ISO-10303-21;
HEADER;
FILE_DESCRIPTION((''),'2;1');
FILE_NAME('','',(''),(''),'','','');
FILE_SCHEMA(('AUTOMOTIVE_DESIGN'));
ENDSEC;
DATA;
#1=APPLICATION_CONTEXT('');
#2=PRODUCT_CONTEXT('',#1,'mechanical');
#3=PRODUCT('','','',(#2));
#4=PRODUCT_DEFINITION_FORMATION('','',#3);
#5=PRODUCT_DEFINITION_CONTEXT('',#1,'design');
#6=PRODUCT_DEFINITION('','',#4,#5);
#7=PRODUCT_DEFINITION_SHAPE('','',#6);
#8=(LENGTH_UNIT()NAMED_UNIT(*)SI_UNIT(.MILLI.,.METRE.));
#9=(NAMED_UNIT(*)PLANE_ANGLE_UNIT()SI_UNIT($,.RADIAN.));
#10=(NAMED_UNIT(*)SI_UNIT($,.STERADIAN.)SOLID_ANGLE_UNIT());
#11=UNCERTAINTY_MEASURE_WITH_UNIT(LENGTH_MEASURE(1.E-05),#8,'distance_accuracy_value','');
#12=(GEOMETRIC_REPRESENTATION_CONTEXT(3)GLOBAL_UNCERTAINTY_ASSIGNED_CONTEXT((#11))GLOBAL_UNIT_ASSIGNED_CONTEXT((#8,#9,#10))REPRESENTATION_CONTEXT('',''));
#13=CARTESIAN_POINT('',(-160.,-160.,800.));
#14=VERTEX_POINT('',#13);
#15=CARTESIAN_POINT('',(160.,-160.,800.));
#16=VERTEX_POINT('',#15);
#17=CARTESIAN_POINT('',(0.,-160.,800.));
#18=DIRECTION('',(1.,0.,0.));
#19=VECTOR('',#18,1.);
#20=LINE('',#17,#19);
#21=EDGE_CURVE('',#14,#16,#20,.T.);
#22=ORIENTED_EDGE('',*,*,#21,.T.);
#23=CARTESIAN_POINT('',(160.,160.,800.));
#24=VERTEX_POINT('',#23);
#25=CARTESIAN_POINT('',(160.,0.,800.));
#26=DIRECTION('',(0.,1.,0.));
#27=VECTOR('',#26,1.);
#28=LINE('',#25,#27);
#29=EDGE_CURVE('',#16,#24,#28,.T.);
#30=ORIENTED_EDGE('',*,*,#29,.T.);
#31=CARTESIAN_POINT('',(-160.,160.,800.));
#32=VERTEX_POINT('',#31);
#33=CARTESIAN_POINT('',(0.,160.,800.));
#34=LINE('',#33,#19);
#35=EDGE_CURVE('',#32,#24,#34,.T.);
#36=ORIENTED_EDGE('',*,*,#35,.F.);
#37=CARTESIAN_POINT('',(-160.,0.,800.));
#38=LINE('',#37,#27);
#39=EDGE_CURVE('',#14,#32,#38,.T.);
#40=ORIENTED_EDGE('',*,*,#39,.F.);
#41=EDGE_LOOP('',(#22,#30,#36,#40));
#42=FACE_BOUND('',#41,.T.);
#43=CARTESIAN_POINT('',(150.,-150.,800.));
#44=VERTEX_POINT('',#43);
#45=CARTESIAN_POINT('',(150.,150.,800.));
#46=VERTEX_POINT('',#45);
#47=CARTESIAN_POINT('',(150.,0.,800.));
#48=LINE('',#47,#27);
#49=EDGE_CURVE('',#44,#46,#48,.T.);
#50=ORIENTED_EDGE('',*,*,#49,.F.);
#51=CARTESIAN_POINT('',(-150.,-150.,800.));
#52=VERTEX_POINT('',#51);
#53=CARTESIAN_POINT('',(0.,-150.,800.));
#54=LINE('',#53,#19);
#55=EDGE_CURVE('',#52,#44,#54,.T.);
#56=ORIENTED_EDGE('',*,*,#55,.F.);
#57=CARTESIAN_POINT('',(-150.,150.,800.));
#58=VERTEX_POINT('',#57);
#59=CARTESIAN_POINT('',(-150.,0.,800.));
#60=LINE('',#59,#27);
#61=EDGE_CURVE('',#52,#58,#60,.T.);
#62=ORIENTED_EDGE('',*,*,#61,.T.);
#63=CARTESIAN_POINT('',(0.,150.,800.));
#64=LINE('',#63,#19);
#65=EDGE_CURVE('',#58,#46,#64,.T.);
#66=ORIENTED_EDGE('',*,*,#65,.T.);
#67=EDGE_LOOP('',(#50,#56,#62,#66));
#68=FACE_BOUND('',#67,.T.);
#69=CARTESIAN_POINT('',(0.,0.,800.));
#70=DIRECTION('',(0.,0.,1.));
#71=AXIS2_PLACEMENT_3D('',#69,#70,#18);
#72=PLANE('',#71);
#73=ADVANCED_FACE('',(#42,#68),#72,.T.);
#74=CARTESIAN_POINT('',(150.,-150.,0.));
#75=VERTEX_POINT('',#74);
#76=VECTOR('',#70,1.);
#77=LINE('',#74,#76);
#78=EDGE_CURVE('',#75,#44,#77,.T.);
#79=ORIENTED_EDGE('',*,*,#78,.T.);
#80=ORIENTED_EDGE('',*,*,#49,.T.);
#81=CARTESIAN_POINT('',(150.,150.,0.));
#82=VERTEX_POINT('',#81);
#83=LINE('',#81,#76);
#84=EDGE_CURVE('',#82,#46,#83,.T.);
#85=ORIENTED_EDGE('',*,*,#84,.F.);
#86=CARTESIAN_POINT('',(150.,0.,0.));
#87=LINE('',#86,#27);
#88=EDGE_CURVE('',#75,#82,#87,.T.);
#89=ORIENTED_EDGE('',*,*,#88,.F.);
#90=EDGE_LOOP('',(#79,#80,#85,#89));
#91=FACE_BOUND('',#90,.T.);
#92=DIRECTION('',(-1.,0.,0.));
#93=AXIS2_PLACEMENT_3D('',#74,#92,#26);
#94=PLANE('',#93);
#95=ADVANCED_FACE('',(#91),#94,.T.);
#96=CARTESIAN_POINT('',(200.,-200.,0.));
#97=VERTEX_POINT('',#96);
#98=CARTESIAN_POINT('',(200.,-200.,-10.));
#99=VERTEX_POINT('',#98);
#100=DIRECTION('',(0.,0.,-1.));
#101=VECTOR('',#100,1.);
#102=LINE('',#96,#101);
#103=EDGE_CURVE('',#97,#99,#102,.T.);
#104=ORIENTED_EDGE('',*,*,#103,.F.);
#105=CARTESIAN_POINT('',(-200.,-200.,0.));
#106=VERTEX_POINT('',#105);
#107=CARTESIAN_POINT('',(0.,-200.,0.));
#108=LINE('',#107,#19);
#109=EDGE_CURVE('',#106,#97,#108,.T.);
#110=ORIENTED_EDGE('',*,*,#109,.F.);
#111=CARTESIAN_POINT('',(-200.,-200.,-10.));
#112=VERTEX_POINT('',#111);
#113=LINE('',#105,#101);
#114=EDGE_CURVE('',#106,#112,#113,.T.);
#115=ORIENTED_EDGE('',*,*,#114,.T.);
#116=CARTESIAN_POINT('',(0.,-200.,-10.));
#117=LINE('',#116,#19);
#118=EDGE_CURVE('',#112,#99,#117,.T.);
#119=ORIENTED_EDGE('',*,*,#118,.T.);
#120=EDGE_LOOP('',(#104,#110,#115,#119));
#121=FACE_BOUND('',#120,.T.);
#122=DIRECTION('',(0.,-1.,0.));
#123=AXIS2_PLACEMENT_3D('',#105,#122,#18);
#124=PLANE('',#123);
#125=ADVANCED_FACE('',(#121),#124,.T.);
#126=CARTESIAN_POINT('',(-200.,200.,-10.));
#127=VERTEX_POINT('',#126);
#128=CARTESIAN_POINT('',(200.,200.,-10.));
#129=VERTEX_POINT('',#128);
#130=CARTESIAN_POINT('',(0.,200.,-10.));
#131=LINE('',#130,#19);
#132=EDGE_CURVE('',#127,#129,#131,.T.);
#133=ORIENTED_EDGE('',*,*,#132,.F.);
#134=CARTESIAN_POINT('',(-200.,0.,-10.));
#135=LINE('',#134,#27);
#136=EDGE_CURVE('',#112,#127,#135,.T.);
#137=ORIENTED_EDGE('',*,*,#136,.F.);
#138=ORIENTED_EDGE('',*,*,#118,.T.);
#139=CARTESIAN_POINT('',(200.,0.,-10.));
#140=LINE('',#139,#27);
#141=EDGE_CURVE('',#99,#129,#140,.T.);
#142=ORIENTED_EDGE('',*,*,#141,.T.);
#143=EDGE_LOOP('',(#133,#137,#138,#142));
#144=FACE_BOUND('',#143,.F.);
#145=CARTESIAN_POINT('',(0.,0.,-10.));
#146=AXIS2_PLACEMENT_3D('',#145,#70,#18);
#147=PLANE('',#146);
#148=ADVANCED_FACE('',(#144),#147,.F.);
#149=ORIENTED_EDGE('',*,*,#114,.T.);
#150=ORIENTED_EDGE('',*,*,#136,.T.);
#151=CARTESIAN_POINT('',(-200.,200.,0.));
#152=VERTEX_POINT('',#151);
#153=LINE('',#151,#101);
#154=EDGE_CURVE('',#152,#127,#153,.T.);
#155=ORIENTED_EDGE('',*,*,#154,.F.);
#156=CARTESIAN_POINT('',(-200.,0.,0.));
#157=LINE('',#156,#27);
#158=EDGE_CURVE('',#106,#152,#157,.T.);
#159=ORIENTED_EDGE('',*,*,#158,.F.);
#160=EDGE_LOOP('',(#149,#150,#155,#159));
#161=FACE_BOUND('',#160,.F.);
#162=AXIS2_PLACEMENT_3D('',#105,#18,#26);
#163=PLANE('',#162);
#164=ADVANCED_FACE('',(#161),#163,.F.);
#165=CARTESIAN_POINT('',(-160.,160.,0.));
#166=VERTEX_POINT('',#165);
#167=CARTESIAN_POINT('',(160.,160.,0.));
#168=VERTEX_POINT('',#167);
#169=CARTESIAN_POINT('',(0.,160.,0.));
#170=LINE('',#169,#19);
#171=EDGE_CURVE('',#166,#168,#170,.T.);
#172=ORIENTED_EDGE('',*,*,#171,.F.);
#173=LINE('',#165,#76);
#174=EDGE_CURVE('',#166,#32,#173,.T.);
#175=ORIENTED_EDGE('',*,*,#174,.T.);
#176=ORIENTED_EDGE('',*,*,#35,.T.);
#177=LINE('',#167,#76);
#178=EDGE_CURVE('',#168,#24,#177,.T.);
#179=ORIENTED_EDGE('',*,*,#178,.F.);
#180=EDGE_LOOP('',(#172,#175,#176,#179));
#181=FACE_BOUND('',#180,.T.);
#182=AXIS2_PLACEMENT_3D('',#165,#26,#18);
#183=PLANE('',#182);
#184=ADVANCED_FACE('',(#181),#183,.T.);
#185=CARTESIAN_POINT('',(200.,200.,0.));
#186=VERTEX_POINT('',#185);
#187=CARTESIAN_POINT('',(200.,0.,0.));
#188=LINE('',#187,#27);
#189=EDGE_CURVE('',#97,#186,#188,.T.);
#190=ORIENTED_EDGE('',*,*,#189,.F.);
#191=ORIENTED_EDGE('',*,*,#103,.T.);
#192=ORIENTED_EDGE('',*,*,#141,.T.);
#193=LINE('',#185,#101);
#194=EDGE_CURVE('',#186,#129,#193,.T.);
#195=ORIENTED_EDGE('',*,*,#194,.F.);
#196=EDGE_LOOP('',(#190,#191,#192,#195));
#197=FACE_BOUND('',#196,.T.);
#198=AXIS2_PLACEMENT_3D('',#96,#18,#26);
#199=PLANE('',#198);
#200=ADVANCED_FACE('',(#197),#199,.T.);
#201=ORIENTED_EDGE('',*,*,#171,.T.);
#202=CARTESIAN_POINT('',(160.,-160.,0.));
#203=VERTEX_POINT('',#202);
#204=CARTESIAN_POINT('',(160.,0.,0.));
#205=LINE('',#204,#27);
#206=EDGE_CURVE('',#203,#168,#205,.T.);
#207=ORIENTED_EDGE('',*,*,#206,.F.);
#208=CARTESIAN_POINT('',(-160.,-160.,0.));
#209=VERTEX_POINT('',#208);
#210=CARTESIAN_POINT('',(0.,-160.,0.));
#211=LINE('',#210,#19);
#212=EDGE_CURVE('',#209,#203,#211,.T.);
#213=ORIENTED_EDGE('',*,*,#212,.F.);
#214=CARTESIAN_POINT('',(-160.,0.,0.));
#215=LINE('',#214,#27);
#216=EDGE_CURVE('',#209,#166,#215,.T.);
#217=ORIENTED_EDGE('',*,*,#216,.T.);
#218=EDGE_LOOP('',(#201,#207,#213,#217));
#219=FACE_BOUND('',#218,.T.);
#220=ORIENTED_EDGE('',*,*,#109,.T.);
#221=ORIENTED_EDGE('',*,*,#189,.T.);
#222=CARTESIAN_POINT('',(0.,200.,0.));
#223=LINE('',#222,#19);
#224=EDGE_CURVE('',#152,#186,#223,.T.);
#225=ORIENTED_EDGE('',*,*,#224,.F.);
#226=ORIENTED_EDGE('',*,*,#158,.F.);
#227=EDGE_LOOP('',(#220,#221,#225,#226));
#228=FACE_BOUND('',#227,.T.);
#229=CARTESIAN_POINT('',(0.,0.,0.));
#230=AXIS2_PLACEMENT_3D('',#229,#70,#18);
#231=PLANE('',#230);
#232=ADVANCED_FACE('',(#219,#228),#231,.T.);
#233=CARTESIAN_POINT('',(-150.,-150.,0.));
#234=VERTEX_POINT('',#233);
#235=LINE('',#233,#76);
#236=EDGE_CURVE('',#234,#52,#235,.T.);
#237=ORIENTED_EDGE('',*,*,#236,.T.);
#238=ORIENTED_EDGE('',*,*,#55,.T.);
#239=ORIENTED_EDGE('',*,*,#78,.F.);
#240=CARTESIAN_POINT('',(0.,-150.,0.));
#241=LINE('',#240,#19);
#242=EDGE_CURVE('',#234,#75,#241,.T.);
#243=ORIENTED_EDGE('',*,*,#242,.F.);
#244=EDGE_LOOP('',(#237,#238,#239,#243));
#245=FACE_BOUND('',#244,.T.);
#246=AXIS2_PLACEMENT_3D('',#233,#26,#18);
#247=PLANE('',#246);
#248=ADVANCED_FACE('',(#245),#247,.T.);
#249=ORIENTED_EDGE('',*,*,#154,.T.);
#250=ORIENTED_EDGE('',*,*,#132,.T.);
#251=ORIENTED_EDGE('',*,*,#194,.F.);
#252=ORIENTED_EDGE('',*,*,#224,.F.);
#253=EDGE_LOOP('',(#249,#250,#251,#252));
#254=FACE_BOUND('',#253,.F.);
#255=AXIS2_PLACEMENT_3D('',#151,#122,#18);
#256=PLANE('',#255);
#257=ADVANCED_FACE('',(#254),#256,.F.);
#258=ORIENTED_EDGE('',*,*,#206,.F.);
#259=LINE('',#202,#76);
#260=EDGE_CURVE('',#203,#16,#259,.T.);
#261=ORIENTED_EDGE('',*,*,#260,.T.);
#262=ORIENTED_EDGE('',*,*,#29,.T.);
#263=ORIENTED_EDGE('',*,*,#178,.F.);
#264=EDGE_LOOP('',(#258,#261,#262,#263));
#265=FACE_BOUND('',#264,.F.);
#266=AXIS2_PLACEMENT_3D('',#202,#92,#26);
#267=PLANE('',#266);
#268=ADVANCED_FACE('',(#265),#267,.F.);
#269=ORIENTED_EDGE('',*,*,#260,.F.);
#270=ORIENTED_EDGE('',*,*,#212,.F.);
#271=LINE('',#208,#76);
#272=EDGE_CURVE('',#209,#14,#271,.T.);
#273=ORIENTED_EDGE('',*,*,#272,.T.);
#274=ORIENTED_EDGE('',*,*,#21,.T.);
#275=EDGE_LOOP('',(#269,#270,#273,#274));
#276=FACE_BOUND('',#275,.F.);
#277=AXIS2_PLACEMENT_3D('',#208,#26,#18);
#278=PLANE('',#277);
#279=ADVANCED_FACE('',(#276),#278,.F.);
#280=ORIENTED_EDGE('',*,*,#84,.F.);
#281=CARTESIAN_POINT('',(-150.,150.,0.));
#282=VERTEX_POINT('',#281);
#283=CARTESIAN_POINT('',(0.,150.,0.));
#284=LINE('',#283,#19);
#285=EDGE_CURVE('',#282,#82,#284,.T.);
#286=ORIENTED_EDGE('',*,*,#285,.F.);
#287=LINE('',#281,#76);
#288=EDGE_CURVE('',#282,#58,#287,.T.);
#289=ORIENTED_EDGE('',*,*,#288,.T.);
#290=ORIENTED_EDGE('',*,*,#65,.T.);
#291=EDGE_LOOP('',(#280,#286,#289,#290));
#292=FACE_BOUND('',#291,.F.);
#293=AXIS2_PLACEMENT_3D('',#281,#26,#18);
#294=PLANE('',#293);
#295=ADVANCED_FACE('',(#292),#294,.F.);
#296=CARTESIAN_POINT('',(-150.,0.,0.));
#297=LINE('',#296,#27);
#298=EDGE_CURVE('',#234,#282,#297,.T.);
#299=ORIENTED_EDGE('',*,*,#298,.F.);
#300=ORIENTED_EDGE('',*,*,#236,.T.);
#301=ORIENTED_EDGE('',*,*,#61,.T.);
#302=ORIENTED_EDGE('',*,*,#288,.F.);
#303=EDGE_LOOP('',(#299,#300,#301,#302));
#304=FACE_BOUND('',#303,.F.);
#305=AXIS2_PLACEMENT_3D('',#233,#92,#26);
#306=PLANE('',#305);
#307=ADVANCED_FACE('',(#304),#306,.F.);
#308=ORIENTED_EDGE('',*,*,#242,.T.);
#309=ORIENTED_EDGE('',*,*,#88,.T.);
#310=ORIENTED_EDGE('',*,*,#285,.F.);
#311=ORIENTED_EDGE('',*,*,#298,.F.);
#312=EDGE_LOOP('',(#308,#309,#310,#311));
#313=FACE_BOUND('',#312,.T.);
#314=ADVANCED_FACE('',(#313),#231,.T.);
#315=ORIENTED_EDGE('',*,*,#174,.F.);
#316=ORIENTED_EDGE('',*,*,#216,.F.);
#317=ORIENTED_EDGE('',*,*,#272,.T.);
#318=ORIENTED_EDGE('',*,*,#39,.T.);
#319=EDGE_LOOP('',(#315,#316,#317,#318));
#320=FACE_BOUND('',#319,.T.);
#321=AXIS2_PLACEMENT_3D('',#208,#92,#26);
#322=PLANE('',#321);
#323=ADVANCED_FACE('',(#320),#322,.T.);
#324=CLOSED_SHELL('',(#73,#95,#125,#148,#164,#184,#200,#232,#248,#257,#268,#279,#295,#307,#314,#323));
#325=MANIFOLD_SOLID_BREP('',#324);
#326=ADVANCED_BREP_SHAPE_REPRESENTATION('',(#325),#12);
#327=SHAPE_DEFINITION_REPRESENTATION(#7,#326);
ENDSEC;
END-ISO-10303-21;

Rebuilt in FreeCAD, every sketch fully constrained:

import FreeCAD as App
import Part
import Sketcher


def add_polygon(sketch, points):
    """Adds a closed chain of lines whose ends are joined by coincident constraints."""
    first, n = sketch.GeometryCount, len(points)
    for a, b in zip(points, points[1:] + points[:1]):
        sketch.addGeometry(Part.LineSegment(App.Vector(*a, 0), App.Vector(*b, 0)), False)
    for i in range(n):
        sketch.addConstraint(Sketcher.Constraint("Coincident", first + i, 2, first + (i + 1) % n, 1))

doc = App.newDocument("Part")
params = doc.addObject("Spreadsheet::Sheet", "Params")
for row, (alias, value) in enumerate([
    ("sketch1_width", "320 mm"),
    ("sketch1_width2", "300 mm"),
    ("pad1_length", "800 mm"),
    ("sketch2_width", "400 mm"),
    ("pad2_length", "10 mm"),
], start=1):
    params.set(f"A{row}", alias)
    params.set(f"B{row}", "=" + value)
    params.setAlias(f"B{row}", alias)

body = doc.addObject("PartDesign::Body", "Body")

# Sketch on XY plane
sketch1 = body.newObject("Sketcher::SketchObject", "Sketch")
sketch1.AttachmentSupport = (doc.getObject("XY_Plane"), [""])
sketch1.MapMode = "FlatFace"
add_polygon(sketch1, [(-160, 160), (-160, -160), (160, -160), (160, 160)])  # lines 0-3
add_polygon(sketch1, [(150, -150), (-150, -150), (-150, 150), (150, 150)])  # lines 4-7
sketch1.addConstraint(Sketcher.Constraint("Vertical", 0))
sketch1.addConstraint(Sketcher.Constraint("Horizontal", 1))
sketch1.addConstraint(Sketcher.Constraint("Vertical", 2))
sketch1.addConstraint(Sketcher.Constraint("Horizontal", 3))
sketch1.addConstraint(Sketcher.Constraint("Horizontal", 4))
sketch1.addConstraint(Sketcher.Constraint("Vertical", 5))
sketch1.addConstraint(Sketcher.Constraint("Horizontal", 6))
sketch1.addConstraint(Sketcher.Constraint("Vertical", 7))
sketch1.addConstraint(Sketcher.Constraint("Symmetric", 0, 2, 2, 2, -1, 1))
sketch1.addConstraint(Sketcher.Constraint("Symmetric", 4, 2, 6, 2, -1, 1))
sketch1.addConstraint(Sketcher.Constraint("Equal", 3, 0))
sketch1.addConstraint(Sketcher.Constraint("Equal", 6, 5))
sketch1.addConstraint(Sketcher.Constraint("DistanceX", 1, 1, 1, 2, 320.0))
sketch1.addConstraint(Sketcher.Constraint("DistanceX", 4, 2, 4, 1, 300.0))
sketch1.setExpression("Constraints[20]", "Params.sketch1_width")
sketch1.setExpression("Constraints[21]", "Params.sketch1_width2")
pad1 = body.newObject("PartDesign::Pad", "Pad")
pad1.Profile = sketch1
pad1.setExpression("Length", "Params.pad1_length")

# Sketch on XY plane
sketch2 = body.newObject("Sketcher::SketchObject", "Sketch001")
sketch2.AttachmentSupport = (doc.getObject("XY_Plane"), [""])
sketch2.MapMode = "FlatFace"
add_polygon(sketch2, [(-200, 200), (-200, -200), (200, -200), (200, 200)])  # lines 0-3
sketch2.addConstraint(Sketcher.Constraint("Vertical", 0))
sketch2.addConstraint(Sketcher.Constraint("Horizontal", 1))
sketch2.addConstraint(Sketcher.Constraint("Vertical", 2))
sketch2.addConstraint(Sketcher.Constraint("Horizontal", 3))
sketch2.addConstraint(Sketcher.Constraint("Symmetric", 0, 2, 2, 2, -1, 1))
sketch2.addConstraint(Sketcher.Constraint("Equal", 3, 0))
sketch2.addConstraint(Sketcher.Constraint("DistanceX", 1, 1, 1, 2, 400.0))
sketch2.setExpression("Constraints[10]", "Params.sketch2_width")
pad2 = body.newObject("PartDesign::Pad", "Pad001")
pad2.Profile = sketch2
pad2.setExpression("Length", "Params.pad2_length")
pad2.Reversed = True

doc.recompute()
